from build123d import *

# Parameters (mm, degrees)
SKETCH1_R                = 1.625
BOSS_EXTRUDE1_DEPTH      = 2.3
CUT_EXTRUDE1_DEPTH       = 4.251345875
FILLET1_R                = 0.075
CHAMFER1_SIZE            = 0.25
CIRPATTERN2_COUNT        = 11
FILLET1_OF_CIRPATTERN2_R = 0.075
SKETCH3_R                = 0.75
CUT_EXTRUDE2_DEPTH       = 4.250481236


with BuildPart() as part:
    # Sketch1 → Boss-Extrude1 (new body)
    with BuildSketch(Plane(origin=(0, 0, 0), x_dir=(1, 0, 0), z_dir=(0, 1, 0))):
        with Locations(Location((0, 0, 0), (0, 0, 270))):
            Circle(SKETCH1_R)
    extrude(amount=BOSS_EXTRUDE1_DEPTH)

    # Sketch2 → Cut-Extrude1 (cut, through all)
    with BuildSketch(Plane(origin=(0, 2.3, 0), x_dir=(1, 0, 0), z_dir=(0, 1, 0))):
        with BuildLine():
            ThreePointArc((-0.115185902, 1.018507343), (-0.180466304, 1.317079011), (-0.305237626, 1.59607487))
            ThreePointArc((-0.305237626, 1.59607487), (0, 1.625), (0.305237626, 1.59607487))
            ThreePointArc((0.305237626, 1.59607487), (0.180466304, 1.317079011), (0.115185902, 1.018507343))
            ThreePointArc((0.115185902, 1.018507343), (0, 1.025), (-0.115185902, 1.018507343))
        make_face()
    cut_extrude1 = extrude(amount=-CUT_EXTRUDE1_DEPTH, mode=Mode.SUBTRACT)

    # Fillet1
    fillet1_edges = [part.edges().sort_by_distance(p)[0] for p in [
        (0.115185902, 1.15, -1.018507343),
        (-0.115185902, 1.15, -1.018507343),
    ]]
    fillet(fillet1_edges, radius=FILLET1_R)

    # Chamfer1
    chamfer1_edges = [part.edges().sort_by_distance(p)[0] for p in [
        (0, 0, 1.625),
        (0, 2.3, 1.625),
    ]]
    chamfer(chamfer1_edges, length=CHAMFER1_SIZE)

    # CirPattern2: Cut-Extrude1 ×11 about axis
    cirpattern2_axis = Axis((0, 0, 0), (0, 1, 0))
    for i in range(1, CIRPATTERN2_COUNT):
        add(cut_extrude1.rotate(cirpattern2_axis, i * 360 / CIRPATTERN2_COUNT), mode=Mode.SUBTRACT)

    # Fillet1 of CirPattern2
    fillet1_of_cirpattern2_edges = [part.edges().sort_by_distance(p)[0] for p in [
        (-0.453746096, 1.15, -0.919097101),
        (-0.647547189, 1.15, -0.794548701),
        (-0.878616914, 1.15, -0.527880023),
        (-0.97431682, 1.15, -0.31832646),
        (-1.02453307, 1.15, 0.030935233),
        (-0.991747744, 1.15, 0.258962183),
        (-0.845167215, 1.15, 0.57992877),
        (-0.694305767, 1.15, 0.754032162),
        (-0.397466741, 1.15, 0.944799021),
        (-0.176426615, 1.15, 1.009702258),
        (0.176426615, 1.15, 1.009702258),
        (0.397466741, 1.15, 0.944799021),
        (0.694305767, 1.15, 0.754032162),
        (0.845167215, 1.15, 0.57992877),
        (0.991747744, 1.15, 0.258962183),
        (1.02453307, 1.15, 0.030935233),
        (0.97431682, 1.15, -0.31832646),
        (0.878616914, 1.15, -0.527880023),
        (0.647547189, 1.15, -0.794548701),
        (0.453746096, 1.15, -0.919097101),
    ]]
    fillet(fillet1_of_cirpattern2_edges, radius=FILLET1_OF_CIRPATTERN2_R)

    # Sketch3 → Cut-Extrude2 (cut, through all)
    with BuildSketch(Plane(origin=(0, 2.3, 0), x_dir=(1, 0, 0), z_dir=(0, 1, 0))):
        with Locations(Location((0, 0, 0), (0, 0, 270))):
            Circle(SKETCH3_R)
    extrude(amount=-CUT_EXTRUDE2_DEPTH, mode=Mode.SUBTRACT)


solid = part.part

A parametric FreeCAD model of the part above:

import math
import FreeCAD as App
import Part
import Sketcher


def edges_at(feature, points):
    """Names of the edges that pass closest to the given points."""
    edges = feature.Shape.Edges
    near = lambda p: min(range(len(edges)), key=lambda i: edges[i].distToShape(Part.Vertex(*p))[0])
    return sorted({f"Edge{near(p) + 1}" for p in points})

doc = App.newDocument("Part")
params = doc.addObject("Spreadsheet::Sheet", "Params")
for row, (alias, value) in enumerate([
    ("sketch1_diameter", "3.25 mm"),
    ("pad1_length", "2.3 mm"),
    ("fillet_radius", "0.075 mm"),
    ("chamfer_size", "0.25 mm"),
    ("fillet2_radius", "0.075 mm"),
    ("sketch3_diameter", "1.5 mm"),
], start=1):
    params.set(f"A{row}", alias)
    params.set(f"B{row}", "=" + value)
    params.setAlias(f"B{row}", alias)

body = doc.addObject("PartDesign::Body", "Body")

sketch1 = body.newObject("Sketcher::SketchObject", "Sketch")
sketch1.AttachmentSupport = (doc.getObject("XZ_Plane"), [""])
sketch1.MapMode = "FlatFace"
sketch1.addGeometry(Part.Circle(App.Vector(0, 0, 0), App.Vector(0, 0, 1), 1.625), False)
sketch1.addConstraint([
    Sketcher.Constraint("Coincident", 0, 3, -1, 1),
    Sketcher.Constraint("Diameter", 0, 3.25),
])
sketch1.setExpression("Constraints[1]", "Params.sketch1_diameter")
pad1 = body.newObject("PartDesign::Pad", "Pad")
pad1.Profile = sketch1
pad1.setExpression("Length", "Params.pad1_length")
pad1.Reversed = True

sketch2 = body.newObject("Sketcher::SketchObject", "Sketch001")
sketch2.AttachmentSupport = (doc.getObject("XZ_Plane"), [""])
sketch2.MapMode = "FlatFace"
sketch2.AttachmentOffset = App.Placement(App.Vector(0, 0, -2.3), App.Rotation())
sketch2.addGeometry([
    Part.ArcOfCircle(Part.Circle(App.Vector(-1.597167, -0.850906, 0), App.Vector(0, 0, 1), 1.491429), math.radians(-29.975813), math.radians(-6.452328)),
    Part.ArcOfCircle(Part.Circle(App.Vector(0, 0, 0), App.Vector(0, 0, 1), 1.025), math.radians(-96.452328), math.radians(-83.547672)),
    Part.ArcOfCircle(Part.Circle(App.Vector(1.597167, -0.850906, 0), App.Vector(0, 0, 1), 1.491429), math.radians(-173.547672), math.radians(-150.024187)),
    Part.ArcOfCircle(Part.Circle(App.Vector(0, 0, 0), App.Vector(0, 0, 1), 1.625), math.radians(-100.826671), math.radians(-79.173329)),
], False)
sketch2.addConstraint([
    Sketcher.Constraint("Coincident", 0, 2, 1, 1),
    Sketcher.Constraint("Coincident", 1, 2, 2, 1),
    Sketcher.Constraint("Coincident", 2, 2, 3, 2),
    Sketcher.Constraint("Coincident", 3, 1, 0, 1),
    Sketcher.Constraint("Coincident", 1, 3, -1, 1),
    Sketcher.Constraint("Coincident", 3, 3, -1, 1),
    Sketcher.Constraint("Equal", 0, 2),
    Sketcher.Constraint("Symmetric", 0, 3, 2, 3, -2),
    Sketcher.Constraint("Radius", 1, 1.025),
    Sketcher.Constraint("Radius", 3, 1.625),
    Sketcher.Constraint("Radius", 0, 1.491429),
    Sketcher.Constraint("DistanceY", 0, 2, 0, 3, 0.167602),
    Sketcher.Constraint("DistanceX", 0, 2, 1, 2, 0.230372),
])
pocket1 = body.newObject("PartDesign::Pocket", "Pocket")
pocket1.Profile = sketch2
pocket1.Type = "ThroughAll"
pocket1.Reversed = True
doc.recompute()

fillet = body.newObject("PartDesign::Fillet", "Fillet")
fillet.Base = (pocket1, edges_at(pocket1, [(0.115, 1.15, -1.019), (-0.115, 1.15, -1.019)]))
fillet.setExpression("Radius", "Params.fillet_radius")
doc.recompute()

chamfer = body.newObject("PartDesign::Chamfer", "Chamfer")
chamfer.Base = (fillet, edges_at(fillet, [(0, 0, 1.625), (0, 2.3, 1.625)]))
chamfer.setExpression("Size", "Params.chamfer_size")
doc.recompute()

polarpattern = body.newObject("PartDesign::PolarPattern", "PolarPattern")
polarpattern.Originals = [pocket1]
polarpattern.Axis = (doc.getObject("Y_Axis"), [""])
polarpattern.Angle = 360
polarpattern.Occurrences = 11
body.Tip = polarpattern
doc.recompute()

fillet2 = body.newObject("PartDesign::Fillet", "Fillet001")
fillet2.Base = (polarpattern, edges_at(polarpattern, [
    (-0.454, 1.15, -0.919),
    (-0.648, 1.15, -0.795),
    (-0.879, 1.15, -0.528),
    (-0.974, 1.15, -0.318),
    (-1.025, 1.15, 0.031),
    (-0.992, 1.15, 0.259),
    (-0.845, 1.15, 0.58),
    (-0.694, 1.15, 0.754),
    (-0.397, 1.15, 0.945),
    (-0.176, 1.15, 1.01),
    (0.176, 1.15, 1.01),
    (0.397, 1.15, 0.945),
    (0.694, 1.15, 0.754),
    (0.845, 1.15, 0.58),
    (0.992, 1.15, 0.259),
    (1.025, 1.15, 0.031),
    (0.974, 1.15, -0.318),
    (0.879, 1.15, -0.528),
    (0.648, 1.15, -0.795),
    (0.454, 1.15, -0.919),
]))
fillet2.setExpression("Radius", "Params.fillet2_radius")

sketch3 = body.newObject("Sketcher::SketchObject", "Sketch002")
sketch3.AttachmentSupport = (doc.getObject("XZ_Plane"), [""])
sketch3.MapMode = "FlatFace"
sketch3.AttachmentOffset = App.Placement(App.Vector(0, 0, -2.3), App.Rotation())
sketch3.addGeometry(Part.Circle(App.Vector(0, 0, 0), App.Vector(0, 0, 1), 0.75), False)
sketch3.addConstraint([
    Sketcher.Constraint("Coincident", 0, 3, -1, 1),
    Sketcher.Constraint("Diameter", 0, 1.5),
])
sketch3.setExpression("Constraints[1]", "Params.sketch3_diameter")
pocket2 = body.newObject("PartDesign::Pocket", "Pocket001")
pocket2.Profile = sketch3
pocket2.Type = "ThroughAll"
pocket2.Reversed = True

doc.recompute()
